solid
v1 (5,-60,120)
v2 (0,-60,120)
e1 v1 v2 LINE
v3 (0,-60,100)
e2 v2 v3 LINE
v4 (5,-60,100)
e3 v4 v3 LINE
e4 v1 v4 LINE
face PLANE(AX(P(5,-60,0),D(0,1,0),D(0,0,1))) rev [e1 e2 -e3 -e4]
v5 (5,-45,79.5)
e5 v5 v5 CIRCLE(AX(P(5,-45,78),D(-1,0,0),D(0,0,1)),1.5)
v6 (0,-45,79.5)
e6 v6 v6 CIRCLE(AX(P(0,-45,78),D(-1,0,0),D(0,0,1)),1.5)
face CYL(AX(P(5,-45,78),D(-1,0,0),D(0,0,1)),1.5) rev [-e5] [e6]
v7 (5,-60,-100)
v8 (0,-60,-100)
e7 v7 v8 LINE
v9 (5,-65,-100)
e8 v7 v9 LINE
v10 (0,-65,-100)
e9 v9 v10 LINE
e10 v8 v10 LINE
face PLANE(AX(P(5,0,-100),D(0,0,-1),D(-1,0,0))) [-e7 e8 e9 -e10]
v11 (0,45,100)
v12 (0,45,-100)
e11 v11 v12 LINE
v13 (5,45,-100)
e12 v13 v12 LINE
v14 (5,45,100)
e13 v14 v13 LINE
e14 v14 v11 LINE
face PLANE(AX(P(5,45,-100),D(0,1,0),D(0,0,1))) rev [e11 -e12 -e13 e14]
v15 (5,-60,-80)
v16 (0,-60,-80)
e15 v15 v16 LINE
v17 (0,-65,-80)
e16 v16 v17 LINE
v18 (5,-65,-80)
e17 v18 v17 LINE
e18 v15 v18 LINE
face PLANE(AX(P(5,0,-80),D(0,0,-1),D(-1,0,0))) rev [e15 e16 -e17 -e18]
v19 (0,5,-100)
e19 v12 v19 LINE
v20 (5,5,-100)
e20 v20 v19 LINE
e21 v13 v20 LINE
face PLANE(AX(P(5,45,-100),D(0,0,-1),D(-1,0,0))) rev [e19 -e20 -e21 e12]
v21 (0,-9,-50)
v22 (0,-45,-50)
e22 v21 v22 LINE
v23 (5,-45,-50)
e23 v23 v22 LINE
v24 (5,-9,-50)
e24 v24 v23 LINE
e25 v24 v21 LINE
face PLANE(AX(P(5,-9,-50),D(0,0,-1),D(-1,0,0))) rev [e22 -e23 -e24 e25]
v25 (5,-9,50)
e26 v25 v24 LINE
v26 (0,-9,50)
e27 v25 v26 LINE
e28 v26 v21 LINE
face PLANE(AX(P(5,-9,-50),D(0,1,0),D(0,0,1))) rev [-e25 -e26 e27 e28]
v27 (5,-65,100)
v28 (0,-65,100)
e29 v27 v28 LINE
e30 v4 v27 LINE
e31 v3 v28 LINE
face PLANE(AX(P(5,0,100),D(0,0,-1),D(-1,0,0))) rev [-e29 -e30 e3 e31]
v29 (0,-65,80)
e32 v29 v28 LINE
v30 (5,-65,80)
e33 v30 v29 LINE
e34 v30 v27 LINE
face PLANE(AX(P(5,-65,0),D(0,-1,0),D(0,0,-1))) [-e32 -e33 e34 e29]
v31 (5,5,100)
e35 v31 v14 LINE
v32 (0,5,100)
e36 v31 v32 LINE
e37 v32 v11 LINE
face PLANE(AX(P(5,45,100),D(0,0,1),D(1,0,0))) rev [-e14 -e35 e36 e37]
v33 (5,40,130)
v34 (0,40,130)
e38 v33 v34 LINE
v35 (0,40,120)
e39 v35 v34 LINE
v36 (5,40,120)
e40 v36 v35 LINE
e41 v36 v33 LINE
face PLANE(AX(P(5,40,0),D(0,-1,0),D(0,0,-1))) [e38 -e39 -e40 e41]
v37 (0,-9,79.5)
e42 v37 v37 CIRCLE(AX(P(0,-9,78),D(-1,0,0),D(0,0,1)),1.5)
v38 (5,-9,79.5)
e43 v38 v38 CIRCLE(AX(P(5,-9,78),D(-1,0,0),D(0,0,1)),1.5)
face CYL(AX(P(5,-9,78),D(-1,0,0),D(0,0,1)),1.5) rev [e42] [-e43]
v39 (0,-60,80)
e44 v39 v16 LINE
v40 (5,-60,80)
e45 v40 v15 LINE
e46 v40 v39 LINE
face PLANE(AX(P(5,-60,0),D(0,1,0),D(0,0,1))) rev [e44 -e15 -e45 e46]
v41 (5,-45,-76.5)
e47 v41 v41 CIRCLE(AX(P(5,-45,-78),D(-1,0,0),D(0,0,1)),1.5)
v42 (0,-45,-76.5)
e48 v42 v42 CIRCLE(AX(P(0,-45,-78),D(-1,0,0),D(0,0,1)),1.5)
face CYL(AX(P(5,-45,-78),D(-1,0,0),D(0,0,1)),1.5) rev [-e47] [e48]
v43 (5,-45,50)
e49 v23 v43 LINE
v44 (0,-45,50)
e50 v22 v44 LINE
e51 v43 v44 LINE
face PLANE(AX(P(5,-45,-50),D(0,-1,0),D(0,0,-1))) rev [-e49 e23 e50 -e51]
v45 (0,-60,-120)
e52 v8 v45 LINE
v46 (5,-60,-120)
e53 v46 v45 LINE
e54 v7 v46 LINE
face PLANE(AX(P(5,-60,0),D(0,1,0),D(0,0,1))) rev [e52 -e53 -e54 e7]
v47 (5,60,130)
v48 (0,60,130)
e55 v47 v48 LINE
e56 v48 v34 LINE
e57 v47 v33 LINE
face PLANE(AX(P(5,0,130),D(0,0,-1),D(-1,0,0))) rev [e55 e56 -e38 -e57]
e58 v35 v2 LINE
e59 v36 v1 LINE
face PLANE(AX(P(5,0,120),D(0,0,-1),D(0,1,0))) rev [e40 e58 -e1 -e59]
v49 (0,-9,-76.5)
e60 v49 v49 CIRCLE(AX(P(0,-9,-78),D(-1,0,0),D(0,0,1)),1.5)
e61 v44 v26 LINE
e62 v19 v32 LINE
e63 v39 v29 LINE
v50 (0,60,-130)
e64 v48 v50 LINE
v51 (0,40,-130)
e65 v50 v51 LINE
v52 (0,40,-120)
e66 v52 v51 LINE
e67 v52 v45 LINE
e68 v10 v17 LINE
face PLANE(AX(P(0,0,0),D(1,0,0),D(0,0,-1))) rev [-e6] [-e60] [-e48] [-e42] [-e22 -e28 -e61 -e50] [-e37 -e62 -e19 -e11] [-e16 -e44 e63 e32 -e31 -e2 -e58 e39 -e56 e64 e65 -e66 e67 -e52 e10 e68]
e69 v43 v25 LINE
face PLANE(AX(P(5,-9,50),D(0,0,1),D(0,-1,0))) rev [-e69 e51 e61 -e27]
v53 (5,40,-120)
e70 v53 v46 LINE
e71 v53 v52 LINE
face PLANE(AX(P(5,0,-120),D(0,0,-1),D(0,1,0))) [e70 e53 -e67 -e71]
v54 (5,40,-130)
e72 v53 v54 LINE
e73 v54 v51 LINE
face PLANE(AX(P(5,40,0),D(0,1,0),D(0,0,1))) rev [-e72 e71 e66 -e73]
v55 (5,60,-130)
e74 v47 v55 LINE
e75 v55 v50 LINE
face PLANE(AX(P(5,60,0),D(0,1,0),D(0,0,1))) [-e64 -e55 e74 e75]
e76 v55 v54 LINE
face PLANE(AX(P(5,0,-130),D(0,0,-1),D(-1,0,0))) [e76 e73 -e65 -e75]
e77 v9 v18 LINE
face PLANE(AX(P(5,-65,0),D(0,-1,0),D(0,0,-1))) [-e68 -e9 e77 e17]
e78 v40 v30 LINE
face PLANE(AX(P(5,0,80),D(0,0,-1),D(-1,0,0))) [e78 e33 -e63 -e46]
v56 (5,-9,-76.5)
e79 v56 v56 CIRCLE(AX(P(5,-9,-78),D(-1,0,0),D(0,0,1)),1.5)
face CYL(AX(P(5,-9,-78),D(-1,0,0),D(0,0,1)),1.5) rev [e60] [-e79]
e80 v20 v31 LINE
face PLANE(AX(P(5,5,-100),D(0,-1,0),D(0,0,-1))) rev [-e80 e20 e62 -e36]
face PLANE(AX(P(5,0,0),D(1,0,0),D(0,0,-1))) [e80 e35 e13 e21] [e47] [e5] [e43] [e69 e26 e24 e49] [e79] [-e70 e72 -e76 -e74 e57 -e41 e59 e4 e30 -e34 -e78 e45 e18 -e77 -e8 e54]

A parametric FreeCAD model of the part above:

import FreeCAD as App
import Part
import Sketcher
from FreeCAD import Vector
Q = App.Units.Quantity


def add_polygon(sketch, points):
    """Adds a closed chain of lines whose ends are joined by coincident constraints."""
    first, n = sketch.GeometryCount, len(points)
    for a, b in zip(points, points[1:] + points[:1]):
        sketch.addGeometry(Part.LineSegment(App.Vector(*a, 0), App.Vector(*b, 0)), False)
    for i in range(n):
        sketch.addConstraint(Sketcher.Constraint("Coincident", first + i, 2, first + (i + 1) % n, 1))

doc = App.newDocument("Part")
body = doc.addObject("PartDesign::Body", "Body")

sketch1 = body.newObject("Sketcher::SketchObject", "Sketch")
sketch1.AttachmentSupport = (doc.getObject("YZ_Plane"), [""])
sketch1.MapMode = "FlatFace"
add_polygon(sketch1, [(40, 120), (-60, 120), (-60, 100), (-65, 100), (-65, 80), (-60, 80), (-60, -80), (-65, -80), (-65, -100), (-60, -100), (-60, -120), (40, -120), (40, -130), (60, -130), (60, 130), (40, 130)])
sketch1.addConstraint([
    Sketcher.Constraint("Horizontal", 0),
    Sketcher.Constraint("Vertical", 1),
    Sketcher.Constraint("Horizontal", 2),
    Sketcher.Constraint("Vertical", 3),
    Sketcher.Constraint("Horizontal", 4),
    Sketcher.Constraint("Vertical", 5),
    Sketcher.Constraint("Horizontal", 6),
    Sketcher.Constraint("Vertical", 7),
    Sketcher.Constraint("Horizontal", 8),
    Sketcher.Constraint("Vertical", 9),
    Sketcher.Constraint("Horizontal", 10),
    Sketcher.Constraint("Vertical", 11),
    Sketcher.Constraint("Horizontal", 12),
    Sketcher.Constraint("Vertical", 13),
    Sketcher.Constraint("Horizontal", 14),
    Sketcher.Constraint("Vertical", 15),
    Sketcher.Constraint("Symmetric", 3, 2, 6, 2, -1),
    Sketcher.Constraint("Symmetric", 1, 2, 8, 2, -1),
    Sketcher.Constraint("Symmetric", 11, 2, 14, 2, -1),
    Sketcher.Constraint("Vertical", 1, 2, 4, 2),
    Sketcher.Constraint("Equal", 14, 1),
    Sketcher.Constraint("Equal", 1, 3),
    Sketcher.Constraint("Equal", 7, 9),
    Sketcher.Constraint("DistanceX", 0, 2, 0, 1, Q("100 mm")),
    Sketcher.Constraint("DistanceX", 2, 2, 2, 1, Q("5 mm")),
    Sketcher.Constraint("DistanceX", 12, 1, 12, 2, Q("20 mm")),
    Sketcher.Constraint("DistanceY", 5, 2, 5, 1, Q("160 mm")),
    Sketcher.Constraint("DistanceY", 11, 2, 11, 1, Q("10 mm")),
    Sketcher.Constraint("DistanceX", 0, 2, -1, 1, Q("60 mm")),
])
pad1 = body.newObject("PartDesign::Pad", "Pad")
pad1.Profile = sketch1
pad1.Length = 5

sketch2 = body.newObject("Sketcher::SketchObject", "Sketch001")
sketch2.AttachmentSupport = (doc.getObject("YZ_Plane"), [""])
sketch2.MapMode = "FlatFace"
sketch2.addGeometry(Part.Circle(Vector(-9, -78, 0), Vector(0, 0, 1), 1.5), False)
sketch2.addGeometry(Part.Circle(Vector(-45, 78, 0), Vector(0, 0, 1), 1.5), False)
sketch2.addGeometry(Part.Circle(Vector(-45, -78, 0), Vector(0, 0, 1), 1.5), False)
sketch2.addGeometry(Part.Circle(Vector(-9, 78, 0), Vector(0, 0, 1), 1.5), False)
add_polygon(sketch2, [(-9, -50), (-45, -50), (-45, 50), (-9, 50)])
add_polygon(sketch2, [(45, -100), (5, -100), (5, 100), (45, 100)])
sketch2.addConstraint([
    Sketcher.Constraint("Horizontal", 4),
    Sketcher.Constraint("Vertical", 5),
    Sketcher.Constraint("Horizontal", 6),
    Sketcher.Constraint("Vertical", 7),
    Sketcher.Constraint("Horizontal", 8),
    Sketcher.Constraint("Vertical", 9),
    Sketcher.Constraint("Horizontal", 10),
    Sketcher.Constraint("Vertical", 11),
    Sketcher.Constraint("Equal", 0, 1),
    Sketcher.Constraint("Equal", 1, 2),
    Sketcher.Constraint("Equal", 2, 3),
    Sketcher.Constraint("Symmetric", 1, 3, 2, 3, -1),
    Sketcher.Constraint("Symmetric", 0, 3, 3, 3, -1),
    Sketcher.Constraint("Horizontal", 0, 3, 2, 3),
    Sketcher.Constraint("Vertical", 2, 3, 4, 2),
    Sketcher.Constraint("Vertical", 3, 3, 6, 2),
    Sketcher.Constraint("Diameter", 0, Q("3 mm")),
    Sketcher.Constraint("DistanceX", 4, 2, 4, 1, Q("36 mm")),
    Sketcher.Constraint("DistanceX", 8, 2, 8, 1, Q("40 mm")),
    Sketcher.Constraint("DistanceY", 5, 1, 5, 2, Q("100 mm")),
    Sketcher.Constraint("DistanceY", 9, 1, 9, 2, Q("200 mm")),
    Sketcher.Constraint("DistanceX", 0, 3, -1, 1, Q("9 mm")),
    Sketcher.Constraint("DistanceY", 0, 3, -1, 1, Q("78 mm")),
    Sketcher.Constraint("DistanceY", 4, 2, -1, 1, Q("50 mm")),
    Sketcher.Constraint("DistanceX", -1, 1, 8, 2, Q("5 mm")),
    Sketcher.Constraint("DistanceY", 8, 2, -1, 1, Q("100 mm")),
])
pocket1 = body.newObject("PartDesign::Pocket", "Pocket")
pocket1.Profile = sketch2
pocket1.Type = "ThroughAll"
pocket1.Reversed = True

doc.recompute()
